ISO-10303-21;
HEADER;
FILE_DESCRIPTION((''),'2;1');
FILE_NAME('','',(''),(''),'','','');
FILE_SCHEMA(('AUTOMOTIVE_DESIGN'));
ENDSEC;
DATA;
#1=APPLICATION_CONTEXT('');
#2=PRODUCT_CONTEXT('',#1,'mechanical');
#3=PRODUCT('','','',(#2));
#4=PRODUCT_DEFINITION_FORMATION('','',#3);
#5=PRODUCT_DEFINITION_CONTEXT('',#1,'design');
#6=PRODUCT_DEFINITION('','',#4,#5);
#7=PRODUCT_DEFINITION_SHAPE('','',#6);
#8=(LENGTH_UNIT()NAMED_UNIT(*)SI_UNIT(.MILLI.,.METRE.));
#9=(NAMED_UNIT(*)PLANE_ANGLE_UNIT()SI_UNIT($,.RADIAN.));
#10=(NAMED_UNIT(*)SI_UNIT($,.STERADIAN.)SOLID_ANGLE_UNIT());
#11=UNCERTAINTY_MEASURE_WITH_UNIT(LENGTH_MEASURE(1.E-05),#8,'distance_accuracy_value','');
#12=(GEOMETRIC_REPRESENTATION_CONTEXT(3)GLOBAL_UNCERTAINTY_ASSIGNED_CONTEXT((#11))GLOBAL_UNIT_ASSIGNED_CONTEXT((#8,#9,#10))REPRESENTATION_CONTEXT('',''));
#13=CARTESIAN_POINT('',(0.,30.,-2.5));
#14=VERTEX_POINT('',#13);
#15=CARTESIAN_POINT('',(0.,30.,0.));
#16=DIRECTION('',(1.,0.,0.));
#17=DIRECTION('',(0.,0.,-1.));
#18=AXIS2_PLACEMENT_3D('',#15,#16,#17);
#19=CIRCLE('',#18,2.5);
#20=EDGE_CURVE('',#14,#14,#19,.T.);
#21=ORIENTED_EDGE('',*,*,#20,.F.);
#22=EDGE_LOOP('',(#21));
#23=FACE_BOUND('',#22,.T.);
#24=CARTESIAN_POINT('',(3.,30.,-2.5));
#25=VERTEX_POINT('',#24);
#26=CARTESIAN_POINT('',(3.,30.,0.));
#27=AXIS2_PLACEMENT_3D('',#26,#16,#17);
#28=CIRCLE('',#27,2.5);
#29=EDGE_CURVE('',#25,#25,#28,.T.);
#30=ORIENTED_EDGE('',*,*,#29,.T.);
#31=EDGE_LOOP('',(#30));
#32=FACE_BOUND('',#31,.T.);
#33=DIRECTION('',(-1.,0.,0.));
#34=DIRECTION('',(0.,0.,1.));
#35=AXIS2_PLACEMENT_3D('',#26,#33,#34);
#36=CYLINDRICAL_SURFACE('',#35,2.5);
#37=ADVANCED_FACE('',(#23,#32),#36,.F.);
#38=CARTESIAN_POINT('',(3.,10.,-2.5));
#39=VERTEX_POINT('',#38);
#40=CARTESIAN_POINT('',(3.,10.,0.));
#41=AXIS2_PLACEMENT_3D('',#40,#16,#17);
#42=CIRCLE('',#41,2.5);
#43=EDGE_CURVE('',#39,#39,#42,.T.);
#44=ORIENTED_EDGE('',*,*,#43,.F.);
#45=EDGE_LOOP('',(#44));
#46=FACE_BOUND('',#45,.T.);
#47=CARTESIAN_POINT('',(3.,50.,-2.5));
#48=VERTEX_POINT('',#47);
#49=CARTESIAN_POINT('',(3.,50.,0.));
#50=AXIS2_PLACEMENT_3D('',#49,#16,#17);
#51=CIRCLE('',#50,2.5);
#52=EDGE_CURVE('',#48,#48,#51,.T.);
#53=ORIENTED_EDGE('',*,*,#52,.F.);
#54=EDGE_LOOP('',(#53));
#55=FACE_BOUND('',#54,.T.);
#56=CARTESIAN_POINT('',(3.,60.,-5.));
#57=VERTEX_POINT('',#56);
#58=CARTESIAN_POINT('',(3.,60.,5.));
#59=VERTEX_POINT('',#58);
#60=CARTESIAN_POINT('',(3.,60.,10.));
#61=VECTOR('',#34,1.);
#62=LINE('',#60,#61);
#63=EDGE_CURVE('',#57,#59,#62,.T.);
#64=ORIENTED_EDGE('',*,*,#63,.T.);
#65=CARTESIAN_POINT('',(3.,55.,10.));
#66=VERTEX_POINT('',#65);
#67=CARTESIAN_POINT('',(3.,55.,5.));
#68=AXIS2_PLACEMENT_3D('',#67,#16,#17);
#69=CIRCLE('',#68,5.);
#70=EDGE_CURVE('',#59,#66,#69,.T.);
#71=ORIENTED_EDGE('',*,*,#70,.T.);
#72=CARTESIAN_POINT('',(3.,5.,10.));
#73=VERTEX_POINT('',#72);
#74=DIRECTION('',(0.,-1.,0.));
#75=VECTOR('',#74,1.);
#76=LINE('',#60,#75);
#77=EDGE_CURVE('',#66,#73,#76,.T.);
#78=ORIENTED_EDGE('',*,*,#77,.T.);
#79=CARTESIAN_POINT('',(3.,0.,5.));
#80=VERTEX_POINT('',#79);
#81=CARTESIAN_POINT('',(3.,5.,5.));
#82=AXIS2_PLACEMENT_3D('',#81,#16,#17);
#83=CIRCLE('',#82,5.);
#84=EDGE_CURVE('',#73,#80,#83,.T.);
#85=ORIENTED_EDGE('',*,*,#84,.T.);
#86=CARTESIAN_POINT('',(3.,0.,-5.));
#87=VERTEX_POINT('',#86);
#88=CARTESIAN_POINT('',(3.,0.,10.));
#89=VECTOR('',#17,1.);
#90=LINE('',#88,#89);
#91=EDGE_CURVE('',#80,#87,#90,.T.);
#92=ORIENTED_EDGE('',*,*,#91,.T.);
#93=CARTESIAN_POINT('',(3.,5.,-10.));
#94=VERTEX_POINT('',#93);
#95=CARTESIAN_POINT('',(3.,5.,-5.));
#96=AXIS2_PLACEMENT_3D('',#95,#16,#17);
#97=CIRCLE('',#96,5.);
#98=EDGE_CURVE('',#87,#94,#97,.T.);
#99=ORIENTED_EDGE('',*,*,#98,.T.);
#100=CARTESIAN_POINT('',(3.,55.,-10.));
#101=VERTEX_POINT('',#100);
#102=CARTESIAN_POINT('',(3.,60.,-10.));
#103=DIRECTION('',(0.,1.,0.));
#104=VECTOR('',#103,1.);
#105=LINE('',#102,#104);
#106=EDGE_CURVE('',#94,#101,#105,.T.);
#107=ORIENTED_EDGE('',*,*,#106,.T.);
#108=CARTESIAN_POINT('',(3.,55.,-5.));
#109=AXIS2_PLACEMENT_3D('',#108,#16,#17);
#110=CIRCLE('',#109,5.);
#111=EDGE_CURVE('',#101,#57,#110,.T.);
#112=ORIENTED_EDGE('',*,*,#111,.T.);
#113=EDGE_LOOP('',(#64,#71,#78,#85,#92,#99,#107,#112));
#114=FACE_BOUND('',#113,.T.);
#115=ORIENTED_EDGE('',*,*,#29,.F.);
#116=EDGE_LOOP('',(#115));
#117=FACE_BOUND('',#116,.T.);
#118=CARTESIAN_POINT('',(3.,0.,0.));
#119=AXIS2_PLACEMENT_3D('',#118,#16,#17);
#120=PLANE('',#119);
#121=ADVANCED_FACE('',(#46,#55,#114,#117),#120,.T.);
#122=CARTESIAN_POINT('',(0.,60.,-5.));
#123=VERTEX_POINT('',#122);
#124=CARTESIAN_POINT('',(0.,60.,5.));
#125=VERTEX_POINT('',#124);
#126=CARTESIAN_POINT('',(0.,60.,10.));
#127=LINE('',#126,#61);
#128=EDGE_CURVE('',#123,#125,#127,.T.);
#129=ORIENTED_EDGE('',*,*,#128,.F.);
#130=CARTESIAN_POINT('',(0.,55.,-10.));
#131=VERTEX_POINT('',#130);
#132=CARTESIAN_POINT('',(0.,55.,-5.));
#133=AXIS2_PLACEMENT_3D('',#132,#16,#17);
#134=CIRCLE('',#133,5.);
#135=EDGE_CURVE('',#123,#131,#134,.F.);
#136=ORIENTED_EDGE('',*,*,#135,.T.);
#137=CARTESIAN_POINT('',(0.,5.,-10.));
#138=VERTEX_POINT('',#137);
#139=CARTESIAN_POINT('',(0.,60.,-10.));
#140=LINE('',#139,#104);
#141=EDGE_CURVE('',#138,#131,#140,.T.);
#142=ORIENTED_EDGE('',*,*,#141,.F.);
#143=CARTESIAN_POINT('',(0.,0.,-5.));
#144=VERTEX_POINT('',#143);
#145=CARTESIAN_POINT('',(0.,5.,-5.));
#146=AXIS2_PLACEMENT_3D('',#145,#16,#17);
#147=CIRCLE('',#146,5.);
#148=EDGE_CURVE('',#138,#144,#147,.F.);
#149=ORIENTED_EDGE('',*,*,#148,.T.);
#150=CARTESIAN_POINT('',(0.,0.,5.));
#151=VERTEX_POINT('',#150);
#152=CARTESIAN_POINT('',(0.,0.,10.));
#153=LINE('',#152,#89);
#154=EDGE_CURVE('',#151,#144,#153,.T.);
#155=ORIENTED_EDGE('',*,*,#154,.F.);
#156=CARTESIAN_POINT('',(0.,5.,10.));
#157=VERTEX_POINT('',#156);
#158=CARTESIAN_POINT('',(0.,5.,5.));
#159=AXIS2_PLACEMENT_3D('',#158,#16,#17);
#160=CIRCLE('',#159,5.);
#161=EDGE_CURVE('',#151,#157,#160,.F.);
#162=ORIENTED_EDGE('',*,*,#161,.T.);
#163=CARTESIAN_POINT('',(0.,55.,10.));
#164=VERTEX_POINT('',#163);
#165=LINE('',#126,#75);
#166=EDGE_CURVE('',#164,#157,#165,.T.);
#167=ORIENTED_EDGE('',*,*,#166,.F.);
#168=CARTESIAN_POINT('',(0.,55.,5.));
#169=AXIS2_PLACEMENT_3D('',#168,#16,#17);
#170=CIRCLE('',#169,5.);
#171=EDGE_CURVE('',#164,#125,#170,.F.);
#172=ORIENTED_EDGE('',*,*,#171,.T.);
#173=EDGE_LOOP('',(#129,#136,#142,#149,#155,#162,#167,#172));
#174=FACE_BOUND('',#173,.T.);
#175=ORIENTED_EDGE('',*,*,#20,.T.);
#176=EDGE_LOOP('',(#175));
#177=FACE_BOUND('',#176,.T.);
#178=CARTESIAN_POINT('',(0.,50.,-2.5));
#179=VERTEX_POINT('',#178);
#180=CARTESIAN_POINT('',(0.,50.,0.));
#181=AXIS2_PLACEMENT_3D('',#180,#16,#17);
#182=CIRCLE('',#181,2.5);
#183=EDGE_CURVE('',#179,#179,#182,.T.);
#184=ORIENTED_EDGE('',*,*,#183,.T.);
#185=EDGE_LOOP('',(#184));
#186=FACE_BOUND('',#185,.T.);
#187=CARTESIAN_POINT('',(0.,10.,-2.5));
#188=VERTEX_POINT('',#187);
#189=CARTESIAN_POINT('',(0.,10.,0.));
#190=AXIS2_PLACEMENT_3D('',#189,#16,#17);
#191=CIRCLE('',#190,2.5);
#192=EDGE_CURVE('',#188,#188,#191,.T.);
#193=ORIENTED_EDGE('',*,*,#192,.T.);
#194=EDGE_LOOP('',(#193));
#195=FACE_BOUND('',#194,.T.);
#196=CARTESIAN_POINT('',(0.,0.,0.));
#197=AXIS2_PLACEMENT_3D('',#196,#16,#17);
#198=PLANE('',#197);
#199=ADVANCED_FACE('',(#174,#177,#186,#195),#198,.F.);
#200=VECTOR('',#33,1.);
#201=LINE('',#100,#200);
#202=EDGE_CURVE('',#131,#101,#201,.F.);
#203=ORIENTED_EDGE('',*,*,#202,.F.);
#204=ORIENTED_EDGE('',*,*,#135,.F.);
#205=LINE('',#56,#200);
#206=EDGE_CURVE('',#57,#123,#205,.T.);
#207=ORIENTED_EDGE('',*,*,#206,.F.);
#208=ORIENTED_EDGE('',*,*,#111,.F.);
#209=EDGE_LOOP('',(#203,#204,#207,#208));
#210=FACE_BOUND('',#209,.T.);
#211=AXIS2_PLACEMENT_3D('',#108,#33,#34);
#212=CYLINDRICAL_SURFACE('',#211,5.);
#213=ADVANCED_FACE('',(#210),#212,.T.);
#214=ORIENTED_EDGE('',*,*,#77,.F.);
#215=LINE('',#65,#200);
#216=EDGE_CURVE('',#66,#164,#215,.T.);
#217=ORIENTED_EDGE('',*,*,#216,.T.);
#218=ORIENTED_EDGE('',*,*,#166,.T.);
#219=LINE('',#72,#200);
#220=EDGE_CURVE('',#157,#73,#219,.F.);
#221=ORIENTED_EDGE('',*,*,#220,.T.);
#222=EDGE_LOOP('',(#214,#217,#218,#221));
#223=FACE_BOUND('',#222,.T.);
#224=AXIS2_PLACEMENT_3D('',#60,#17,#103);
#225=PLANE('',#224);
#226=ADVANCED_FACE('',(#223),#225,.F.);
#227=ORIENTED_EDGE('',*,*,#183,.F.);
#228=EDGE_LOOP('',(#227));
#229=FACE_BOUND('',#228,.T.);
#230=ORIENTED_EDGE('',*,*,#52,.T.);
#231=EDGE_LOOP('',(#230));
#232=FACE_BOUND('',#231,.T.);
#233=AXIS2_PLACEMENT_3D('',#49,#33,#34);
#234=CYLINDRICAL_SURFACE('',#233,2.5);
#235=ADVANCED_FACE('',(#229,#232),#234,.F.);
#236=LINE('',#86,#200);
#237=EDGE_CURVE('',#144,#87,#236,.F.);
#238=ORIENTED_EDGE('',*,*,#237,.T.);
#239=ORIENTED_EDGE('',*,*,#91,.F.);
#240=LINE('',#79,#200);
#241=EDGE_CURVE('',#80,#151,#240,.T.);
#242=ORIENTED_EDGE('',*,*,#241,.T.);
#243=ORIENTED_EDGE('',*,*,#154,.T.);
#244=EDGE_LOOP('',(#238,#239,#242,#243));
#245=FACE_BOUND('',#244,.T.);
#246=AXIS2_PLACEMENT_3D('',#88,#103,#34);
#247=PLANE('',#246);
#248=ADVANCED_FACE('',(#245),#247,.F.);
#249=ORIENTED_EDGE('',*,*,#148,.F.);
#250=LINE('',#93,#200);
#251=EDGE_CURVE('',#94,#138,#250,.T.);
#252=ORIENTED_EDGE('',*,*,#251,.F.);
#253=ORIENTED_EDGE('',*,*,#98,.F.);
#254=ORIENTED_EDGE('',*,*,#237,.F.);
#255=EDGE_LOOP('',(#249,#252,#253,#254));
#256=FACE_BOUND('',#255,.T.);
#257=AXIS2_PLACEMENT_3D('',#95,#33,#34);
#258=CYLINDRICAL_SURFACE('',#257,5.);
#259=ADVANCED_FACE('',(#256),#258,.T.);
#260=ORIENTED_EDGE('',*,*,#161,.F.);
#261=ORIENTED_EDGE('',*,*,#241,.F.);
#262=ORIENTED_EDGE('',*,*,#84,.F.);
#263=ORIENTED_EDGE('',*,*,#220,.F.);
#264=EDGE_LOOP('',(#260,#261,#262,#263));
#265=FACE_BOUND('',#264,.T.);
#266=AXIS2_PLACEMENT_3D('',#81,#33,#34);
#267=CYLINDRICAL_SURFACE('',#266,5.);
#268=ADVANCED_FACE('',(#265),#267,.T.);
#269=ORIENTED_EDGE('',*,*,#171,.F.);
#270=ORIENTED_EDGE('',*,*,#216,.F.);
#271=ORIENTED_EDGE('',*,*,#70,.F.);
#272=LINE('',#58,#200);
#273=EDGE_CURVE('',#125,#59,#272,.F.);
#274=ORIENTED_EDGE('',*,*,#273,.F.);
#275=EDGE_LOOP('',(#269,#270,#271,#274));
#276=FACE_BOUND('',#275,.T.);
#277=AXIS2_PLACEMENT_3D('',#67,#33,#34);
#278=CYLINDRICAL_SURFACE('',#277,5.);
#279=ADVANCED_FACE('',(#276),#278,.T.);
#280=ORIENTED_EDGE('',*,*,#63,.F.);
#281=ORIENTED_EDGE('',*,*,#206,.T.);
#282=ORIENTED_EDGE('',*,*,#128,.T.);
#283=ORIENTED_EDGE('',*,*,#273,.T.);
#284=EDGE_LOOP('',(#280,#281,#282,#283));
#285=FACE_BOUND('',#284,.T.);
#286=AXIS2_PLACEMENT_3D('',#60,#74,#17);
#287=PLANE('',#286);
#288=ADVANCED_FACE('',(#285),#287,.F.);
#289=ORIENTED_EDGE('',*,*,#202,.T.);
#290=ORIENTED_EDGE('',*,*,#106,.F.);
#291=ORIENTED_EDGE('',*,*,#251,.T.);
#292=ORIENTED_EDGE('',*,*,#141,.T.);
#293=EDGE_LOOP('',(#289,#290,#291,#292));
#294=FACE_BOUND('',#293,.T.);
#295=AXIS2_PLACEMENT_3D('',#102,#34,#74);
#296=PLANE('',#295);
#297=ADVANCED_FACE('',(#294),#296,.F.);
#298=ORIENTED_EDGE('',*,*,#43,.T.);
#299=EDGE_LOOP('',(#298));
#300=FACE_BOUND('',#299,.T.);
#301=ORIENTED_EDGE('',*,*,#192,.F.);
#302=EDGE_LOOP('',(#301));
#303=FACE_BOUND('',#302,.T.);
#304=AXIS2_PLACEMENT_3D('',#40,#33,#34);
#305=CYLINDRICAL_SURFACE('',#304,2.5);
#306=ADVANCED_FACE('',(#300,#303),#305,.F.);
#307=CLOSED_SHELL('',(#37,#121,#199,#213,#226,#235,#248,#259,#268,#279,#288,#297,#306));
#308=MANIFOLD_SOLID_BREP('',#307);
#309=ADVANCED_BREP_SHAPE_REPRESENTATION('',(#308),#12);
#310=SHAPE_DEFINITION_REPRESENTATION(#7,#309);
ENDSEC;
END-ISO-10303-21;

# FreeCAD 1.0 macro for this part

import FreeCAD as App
import Part
import Sketcher
Q = App.Units.Quantity


def edges_at(feature, points):
    """Names of the edges that pass closest to the given points."""
    edges = feature.Shape.Edges
    near = lambda p: min(range(len(edges)), key=lambda i: edges[i].distToShape(Part.Vertex(*p))[0])
    return sorted({f"Edge{near(p) + 1}" for p in points})

doc = App.newDocument("Part")
params = doc.addObject("Spreadsheet::Sheet", "Params")
for row, (alias, value) in enumerate([
    ("sketch1_diameter", "5 mm"),
    ("sketch1_width", "60 mm"),
    ("sketch1_height", "20 mm"),
    ("pad1_length", "3 mm"),
    ("fillet_radius", "5 mm"),
], start=1):
    params.set(f"A{row}", alias)
    params.set(f"B{row}", "=" + value)
    params.setAlias(f"B{row}", alias)

body = doc.addObject("PartDesign::Body", "Body")

sketch1 = body.newObject("Sketcher::SketchObject", "Sketch")
sketch1.AttachmentSupport = (doc.getObject("YZ_Plane"), [""])
sketch1.MapMode = "FlatFace"
sketch1.addGeometry([
    Part.LineSegment(App.Vector(60, 10, 0), App.Vector(0, 10, 0)),
    Part.LineSegment(App.Vector(0, 10, 0), App.Vector(0, -10, 0)),
    Part.LineSegment(App.Vector(0, -10, 0), App.Vector(60, -10, 0)),
    Part.LineSegment(App.Vector(60, -10, 0), App.Vector(60, 10, 0)),
    Part.Circle(App.Vector(10, 0, 0), App.Vector(0, 0, 1), 2.5),
    Part.Circle(App.Vector(30, 0, 0), App.Vector(0, 0, 1), 2.5),
    Part.Circle(App.Vector(50, 0, 0), App.Vector(0, 0, 1), 2.5),
], False)
sketch1.addConstraint([
    Sketcher.Constraint("Coincident", 0, 2, 1, 1),
    Sketcher.Constraint("Coincident", 1, 2, 2, 1),
    Sketcher.Constraint("Coincident", 2, 2, 3, 1),
    Sketcher.Constraint("Coincident", 3, 2, 0, 1),
    Sketcher.Constraint("Horizontal", 0),
    Sketcher.Constraint("Vertical", 1),
    Sketcher.Constraint("Horizontal", 2),
    Sketcher.Constraint("Vertical", 3),
    Sketcher.Constraint("Equal", 4, 5),
    Sketcher.Constraint("Equal", 5, 6),
    Sketcher.Constraint("Symmetric", 0, 2, 1, 2, -1, 1),
    Sketcher.Constraint("PointOnObject", 4, 3, -1),
    Sketcher.Constraint("PointOnObject", 5, 3, -1),
    Sketcher.Constraint("PointOnObject", 6, 3, -1),
    Sketcher.Constraint("Diameter", 4, Q("5 mm")),
    Sketcher.Constraint("DistanceX", 0, 2, 0, 1, Q("60 mm")),
    Sketcher.Constraint("DistanceY", 1, 2, 1, 1, Q("20 mm")),
    Sketcher.Constraint("DistanceX", -1, 1, 4, 3, Q("10 mm")),
    Sketcher.Constraint("DistanceX", -1, 1, 5, 3, Q("30 mm")),
    Sketcher.Constraint("DistanceX", -1, 1, 6, 3, Q("50 mm")),
])
sketch1.setExpression("Constraints[14]", "Params.sketch1_diameter")
sketch1.setExpression("Constraints[15]", "Params.sketch1_width")
sketch1.setExpression("Constraints[16]", "Params.sketch1_height")
pad1 = body.newObject("PartDesign::Pad", "Pad")
pad1.Profile = sketch1
pad1.setExpression("Length", "Params.pad1_length")
doc.recompute()

fillet = body.newObject("PartDesign::Fillet", "Fillet")
fillet.Base = (pad1, edges_at(pad1, [
    (1.5, 60, 10),
    (1.5, 60, -10),
    (1.5, 0, -10),
    (1.5, 0, 10),
]))
fillet.setExpression("Radius", "Params.fillet_radius")

doc.recompute()
